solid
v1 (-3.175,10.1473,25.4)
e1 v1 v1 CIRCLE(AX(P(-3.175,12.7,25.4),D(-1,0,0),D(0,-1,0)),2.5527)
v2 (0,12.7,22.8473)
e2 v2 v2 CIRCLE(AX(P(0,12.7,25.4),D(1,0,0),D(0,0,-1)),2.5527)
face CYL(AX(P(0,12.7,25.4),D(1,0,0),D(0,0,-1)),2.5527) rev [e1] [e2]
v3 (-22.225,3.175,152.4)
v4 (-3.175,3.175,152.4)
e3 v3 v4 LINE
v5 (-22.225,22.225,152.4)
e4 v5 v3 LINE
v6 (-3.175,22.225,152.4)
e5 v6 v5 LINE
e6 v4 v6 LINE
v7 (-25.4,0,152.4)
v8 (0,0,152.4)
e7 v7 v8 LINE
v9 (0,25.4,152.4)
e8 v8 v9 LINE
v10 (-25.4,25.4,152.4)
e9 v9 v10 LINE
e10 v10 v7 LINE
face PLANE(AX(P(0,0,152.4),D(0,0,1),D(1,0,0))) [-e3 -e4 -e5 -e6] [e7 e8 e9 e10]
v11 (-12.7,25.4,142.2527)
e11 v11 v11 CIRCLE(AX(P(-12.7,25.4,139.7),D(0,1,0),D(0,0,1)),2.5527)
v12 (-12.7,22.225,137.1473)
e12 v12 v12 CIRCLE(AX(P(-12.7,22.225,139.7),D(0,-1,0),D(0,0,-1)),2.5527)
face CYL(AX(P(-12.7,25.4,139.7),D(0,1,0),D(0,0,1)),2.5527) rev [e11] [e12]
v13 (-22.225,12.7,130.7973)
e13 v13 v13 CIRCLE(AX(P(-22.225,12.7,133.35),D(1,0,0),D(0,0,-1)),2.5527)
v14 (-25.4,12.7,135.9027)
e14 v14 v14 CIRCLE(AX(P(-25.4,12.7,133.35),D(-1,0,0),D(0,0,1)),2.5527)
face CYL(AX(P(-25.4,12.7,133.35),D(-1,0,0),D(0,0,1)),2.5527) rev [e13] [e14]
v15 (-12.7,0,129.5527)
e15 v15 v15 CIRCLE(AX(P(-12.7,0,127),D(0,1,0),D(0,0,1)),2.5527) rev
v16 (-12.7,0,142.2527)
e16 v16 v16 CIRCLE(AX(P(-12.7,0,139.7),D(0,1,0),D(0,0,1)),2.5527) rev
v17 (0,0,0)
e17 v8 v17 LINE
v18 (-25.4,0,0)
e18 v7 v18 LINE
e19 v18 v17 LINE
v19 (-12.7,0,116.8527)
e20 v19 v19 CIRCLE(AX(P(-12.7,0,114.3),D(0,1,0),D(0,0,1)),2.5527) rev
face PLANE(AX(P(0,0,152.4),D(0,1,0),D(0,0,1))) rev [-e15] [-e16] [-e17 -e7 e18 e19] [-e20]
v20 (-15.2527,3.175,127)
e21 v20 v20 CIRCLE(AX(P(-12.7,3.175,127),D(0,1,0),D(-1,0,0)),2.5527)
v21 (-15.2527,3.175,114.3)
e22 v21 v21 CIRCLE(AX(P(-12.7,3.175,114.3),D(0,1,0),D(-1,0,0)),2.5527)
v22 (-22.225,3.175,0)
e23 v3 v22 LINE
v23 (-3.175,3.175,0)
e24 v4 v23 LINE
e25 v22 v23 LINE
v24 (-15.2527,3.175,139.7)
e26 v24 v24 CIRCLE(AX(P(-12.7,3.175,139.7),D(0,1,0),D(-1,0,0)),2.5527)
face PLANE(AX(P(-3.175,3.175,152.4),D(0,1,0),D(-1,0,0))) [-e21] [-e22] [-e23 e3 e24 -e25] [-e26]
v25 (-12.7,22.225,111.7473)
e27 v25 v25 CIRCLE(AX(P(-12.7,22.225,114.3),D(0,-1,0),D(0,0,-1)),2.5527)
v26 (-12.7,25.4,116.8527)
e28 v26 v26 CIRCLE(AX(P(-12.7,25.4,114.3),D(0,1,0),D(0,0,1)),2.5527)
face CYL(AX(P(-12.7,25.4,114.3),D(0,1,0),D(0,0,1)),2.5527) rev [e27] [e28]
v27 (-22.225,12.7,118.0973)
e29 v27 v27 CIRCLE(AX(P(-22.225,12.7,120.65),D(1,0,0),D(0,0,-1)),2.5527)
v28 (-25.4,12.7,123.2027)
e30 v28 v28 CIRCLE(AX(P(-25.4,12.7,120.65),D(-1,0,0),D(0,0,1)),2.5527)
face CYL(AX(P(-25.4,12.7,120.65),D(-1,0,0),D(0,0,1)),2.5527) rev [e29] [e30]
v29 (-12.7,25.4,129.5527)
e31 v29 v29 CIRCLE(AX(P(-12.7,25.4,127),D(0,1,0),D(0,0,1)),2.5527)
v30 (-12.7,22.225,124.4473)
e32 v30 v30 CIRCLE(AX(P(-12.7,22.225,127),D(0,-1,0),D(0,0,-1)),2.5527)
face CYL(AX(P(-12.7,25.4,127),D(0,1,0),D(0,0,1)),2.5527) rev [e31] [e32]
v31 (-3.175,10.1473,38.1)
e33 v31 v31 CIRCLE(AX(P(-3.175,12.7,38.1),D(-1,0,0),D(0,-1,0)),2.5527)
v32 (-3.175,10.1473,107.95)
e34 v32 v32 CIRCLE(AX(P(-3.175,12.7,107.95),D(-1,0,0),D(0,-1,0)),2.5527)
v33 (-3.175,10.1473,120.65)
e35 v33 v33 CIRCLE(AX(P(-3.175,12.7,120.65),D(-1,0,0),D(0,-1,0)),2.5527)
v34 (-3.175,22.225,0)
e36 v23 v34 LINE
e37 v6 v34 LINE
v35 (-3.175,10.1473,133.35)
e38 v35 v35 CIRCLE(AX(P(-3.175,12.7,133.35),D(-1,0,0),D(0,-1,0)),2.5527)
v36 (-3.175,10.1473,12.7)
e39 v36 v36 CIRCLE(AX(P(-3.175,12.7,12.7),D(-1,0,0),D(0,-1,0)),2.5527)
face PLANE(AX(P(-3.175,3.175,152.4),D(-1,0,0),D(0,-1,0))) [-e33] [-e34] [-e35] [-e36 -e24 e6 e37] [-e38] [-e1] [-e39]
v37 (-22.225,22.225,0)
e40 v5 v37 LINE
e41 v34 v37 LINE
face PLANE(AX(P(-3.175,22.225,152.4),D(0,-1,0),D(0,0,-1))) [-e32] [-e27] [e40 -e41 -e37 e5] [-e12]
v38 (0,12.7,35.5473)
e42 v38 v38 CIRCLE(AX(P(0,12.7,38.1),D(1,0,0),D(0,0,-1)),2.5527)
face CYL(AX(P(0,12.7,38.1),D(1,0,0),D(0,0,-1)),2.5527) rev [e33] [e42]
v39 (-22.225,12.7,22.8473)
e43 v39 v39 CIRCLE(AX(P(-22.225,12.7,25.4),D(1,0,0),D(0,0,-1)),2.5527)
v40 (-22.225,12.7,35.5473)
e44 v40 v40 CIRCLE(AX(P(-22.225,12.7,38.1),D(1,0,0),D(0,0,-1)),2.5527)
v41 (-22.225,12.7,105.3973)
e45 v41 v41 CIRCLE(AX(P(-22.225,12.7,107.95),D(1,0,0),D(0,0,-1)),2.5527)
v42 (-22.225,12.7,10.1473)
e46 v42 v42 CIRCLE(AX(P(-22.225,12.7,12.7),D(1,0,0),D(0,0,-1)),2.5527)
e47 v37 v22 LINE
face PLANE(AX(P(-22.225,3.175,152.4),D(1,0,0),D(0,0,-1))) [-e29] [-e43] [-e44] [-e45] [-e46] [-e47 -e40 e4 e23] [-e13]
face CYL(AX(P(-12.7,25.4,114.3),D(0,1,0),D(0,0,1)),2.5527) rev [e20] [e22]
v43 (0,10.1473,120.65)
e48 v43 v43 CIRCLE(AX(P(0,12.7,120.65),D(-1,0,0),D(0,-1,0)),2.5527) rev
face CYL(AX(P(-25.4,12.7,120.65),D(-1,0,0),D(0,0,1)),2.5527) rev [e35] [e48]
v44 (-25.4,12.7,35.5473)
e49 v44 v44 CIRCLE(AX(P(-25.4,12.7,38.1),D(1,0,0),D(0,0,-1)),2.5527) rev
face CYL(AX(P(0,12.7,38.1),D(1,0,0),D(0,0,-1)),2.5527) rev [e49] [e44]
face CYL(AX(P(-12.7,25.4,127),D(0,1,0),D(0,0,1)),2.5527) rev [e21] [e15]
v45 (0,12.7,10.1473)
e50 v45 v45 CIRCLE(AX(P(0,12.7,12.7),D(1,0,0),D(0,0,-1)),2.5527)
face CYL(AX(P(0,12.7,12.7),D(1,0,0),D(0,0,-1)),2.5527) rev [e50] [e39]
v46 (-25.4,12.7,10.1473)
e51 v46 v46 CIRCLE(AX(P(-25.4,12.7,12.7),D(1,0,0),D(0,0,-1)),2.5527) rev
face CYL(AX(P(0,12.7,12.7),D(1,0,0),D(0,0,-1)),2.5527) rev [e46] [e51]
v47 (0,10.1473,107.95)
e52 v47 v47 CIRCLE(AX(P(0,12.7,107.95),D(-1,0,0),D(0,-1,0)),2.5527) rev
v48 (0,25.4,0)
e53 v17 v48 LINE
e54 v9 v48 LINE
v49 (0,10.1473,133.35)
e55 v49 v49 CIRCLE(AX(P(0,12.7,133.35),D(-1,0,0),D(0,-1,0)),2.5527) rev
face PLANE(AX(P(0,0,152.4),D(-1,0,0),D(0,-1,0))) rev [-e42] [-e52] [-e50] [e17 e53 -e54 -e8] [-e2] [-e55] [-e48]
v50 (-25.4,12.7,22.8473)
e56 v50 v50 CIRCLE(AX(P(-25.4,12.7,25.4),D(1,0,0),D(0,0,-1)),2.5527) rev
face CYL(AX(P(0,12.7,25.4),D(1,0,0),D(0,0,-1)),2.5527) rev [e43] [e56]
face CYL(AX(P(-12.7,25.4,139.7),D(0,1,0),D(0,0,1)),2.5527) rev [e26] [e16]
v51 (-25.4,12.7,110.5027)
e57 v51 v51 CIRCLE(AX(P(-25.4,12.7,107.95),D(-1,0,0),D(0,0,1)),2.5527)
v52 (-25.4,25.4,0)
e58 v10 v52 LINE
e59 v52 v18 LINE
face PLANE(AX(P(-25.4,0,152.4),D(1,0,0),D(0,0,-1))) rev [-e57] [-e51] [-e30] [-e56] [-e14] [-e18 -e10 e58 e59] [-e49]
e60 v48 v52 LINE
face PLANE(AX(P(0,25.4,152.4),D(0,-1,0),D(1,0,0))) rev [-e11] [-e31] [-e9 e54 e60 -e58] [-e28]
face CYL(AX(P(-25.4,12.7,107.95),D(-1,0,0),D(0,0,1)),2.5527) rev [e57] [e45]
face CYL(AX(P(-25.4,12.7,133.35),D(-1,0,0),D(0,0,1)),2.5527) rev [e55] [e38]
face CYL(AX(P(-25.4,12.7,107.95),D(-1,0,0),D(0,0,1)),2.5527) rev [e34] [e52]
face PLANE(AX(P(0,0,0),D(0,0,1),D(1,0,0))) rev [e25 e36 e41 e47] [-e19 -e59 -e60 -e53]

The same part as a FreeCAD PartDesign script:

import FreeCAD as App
import Part
import Sketcher

V = App.Vector
Q = App.Units.Quantity


def add_polygon(sketch, points):
    """Adds a closed chain of lines whose ends are joined by coincident constraints."""
    first, n = sketch.GeometryCount, len(points)
    for a, b in zip(points, points[1:] + points[:1]):
        sketch.addGeometry(Part.LineSegment(App.Vector(*a, 0), App.Vector(*b, 0)), False)
    for i in range(n):
        sketch.addConstraint(Sketcher.Constraint("Coincident", first + i, 2, first + (i + 1) % n, 1))

doc = App.newDocument("Part")
body = doc.addObject("PartDesign::Body", "Body")

# Sketch on XY plane
sketch1 = doc.addObject("Sketcher::SketchObject", "Sketch")
body.addObject(sketch1)
sketch1.AttachmentSupport = (doc.XY_Plane, [""])
sketch1.MapMode = "FlatFace"
add_polygon(sketch1, [(-25, 25), (-25, 0), (0, 0), (0, 25)])  # lines 0-3
add_polygon(sketch1, [(-3, 3), (-22, 3), (-22, 22), (-3, 22)])  # lines 4-7
sketch1.addConstraint([
    Sketcher.Constraint("Vertical", 0),
    Sketcher.Constraint("Horizontal", 1),
    Sketcher.Constraint("Vertical", 2),
    Sketcher.Constraint("Horizontal", 3),
    Sketcher.Constraint("Horizontal", 4),
    Sketcher.Constraint("Vertical", 5),
    Sketcher.Constraint("Horizontal", 6),
    Sketcher.Constraint("Vertical", 7),
    Sketcher.Constraint("Coincident", 1, 2, -1, 1),
    Sketcher.Constraint("Equal", 3, 0),
    Sketcher.Constraint("Equal", 6, 5),
    Sketcher.Constraint("DistanceX", 1, 1, 1, 2, Q("1 in")),
    Sketcher.Constraint("DistanceX", 4, 2, 4, 1, Q("0.75 in")),
    Sketcher.Constraint("DistanceX", 4, 2, -1, 1, Q("0.875 in")),
    Sketcher.Constraint("DistanceY", -1, 1, 4, 2, Q("0.125 in")),
])
pad1 = doc.addObject("PartDesign::Pad", "Pad")
body.addObject(pad1)
pad1.Profile = sketch1
pad1.Length = Q("6 in")

# Sketch on XZ plane
sketch2 = doc.addObject("Sketcher::SketchObject", "Sketch001")
body.addObject(sketch2)
sketch2.AttachmentSupport = (doc.XZ_Plane, [""])
sketch2.MapMode = "FlatFace"
sketch2.AttachmentOffset = App.Placement(V(0, 0, -1 * 25.4), App.Rotation())
sketch2.addGeometry([
    Part.Circle(V(-12.7, 139.7, 0), V(0, 0, 1), 2.6),
    Part.Circle(V(-12.7, 127, 0), V(0, 0, 1), 2.6),
    Part.Circle(V(-12.7, 114.3, 0), V(0, 0, 1), 2.6),
], False)
sketch2.addConstraint([
    Sketcher.Constraint("Equal", 0, 1),
    Sketcher.Constraint("Equal", 1, 2),
    Sketcher.Constraint("Vertical", 0, 3, 1, 3),
    Sketcher.Constraint("Vertical", 1, 3, 2, 3),
    Sketcher.Constraint("Diameter", 0, Q("0.201 in")),
    Sketcher.Constraint("DistanceY", -1, 1, 1, 3, Q("5 in")),
    Sketcher.Constraint("DistanceY", 2, 3, 0, 3, Q("1 in")),
    Sketcher.Constraint("DistanceX", 0, 3, -1, 1, Q("0.5 in")),
    Sketcher.Constraint("DistanceY", -1, 1, 0, 3, Q("5.5 in")),
])
doc.recompute()
hole = doc.addObject("PartDesign::Hole", "Hole")
body.addObject(hole)
hole.Profile = sketch2
hole.ThreadType = "None"
hole.Diameter = Q("0.201 in")
hole.DepthType = "ThroughAll"
hole.Reversed = True

# Sketch on YZ plane
sketch3 = doc.addObject("Sketcher::SketchObject", "Sketch002")
body.addObject(sketch3)
sketch3.AttachmentSupport = (doc.YZ_Plane, [""])
sketch3.MapMode = "FlatFace"
sketch3.AttachmentOffset = App.Placement(V(0, 0, -1 * 25.4), App.Rotation())
sketch3.addGeometry([
    Part.Circle(V(12.7, 133.3, 0), V(0, 0, 1), 2.6),
    Part.Circle(V(12.7, 120.7, 0), V(0, 0, 1), 2.6),
    Part.Circle(V(12.7, 108, 0), V(0, 0, 1), 2.6),
], False)
sketch3.addConstraint([
    Sketcher.Constraint("Equal", 0, 1),
    Sketcher.Constraint("Equal", 1, 2),
    Sketcher.Constraint("Vertical", 0, 3, 1, 3),
    Sketcher.Constraint("Vertical", 1, 3, 2, 3),
    Sketcher.Constraint("Diameter", 0, Q("0.201 in")),
    Sketcher.Constraint("DistanceY", 2, 3, 0, 3, Q("1 in")),
    Sketcher.Constraint("DistanceX", -1, 1, 0, 3, Q("0.5 in")),
    Sketcher.Constraint("DistanceY", 1, 3, 0, 3, Q("0.5 in")),
    Sketcher.Constraint("DistanceY", -1, 1, 0, 3, Q("5.25 in")),
])
doc.recompute()
hole2 = doc.addObject("PartDesign::Hole", "Hole001")
body.addObject(hole2)
hole2.Profile = sketch3
hole2.ThreadType = "None"
hole2.Diameter = Q("0.201 in")
hole2.DepthType = "ThroughAll"
hole2.Reversed = True

# Sketch on YZ plane
sketch4 = doc.addObject("Sketcher::SketchObject", "Sketch003")
body.addObject(sketch4)
sketch4.AttachmentSupport = (doc.YZ_Plane, [""])
sketch4.MapMode = "FlatFace"
sketch4.addGeometry([
    Part.Circle(V(12.7, 12.7, 0), V(0, 0, 1), 2.6),
    Part.Circle(V(12.7, 25.4, 0), V(0, 0, 1), 2.6),
    Part.Circle(V(12.7, 38.1, 0), V(0, 0, 1), 2.6),
], False)
sketch4.addConstraint([
    Sketcher.Constraint("Equal", 0, 1),
    Sketcher.Constraint("Equal", 1, 2),
    Sketcher.Constraint("Vertical", 0, 3, 1, 3),
    Sketcher.Constraint("Vertical", 1, 3, 2, 3),
    Sketcher.Constraint("Diameter", 0, Q("0.201 in")),
    Sketcher.Constraint("DistanceY", -1, 1, 1, 3, Q("1 in")),
    Sketcher.Constraint("DistanceY", 0, 3, 2, 3, Q("1 in")),
    Sketcher.Constraint("DistanceX", -1, 1, 0, 3, Q("0.5 in")),
    Sketcher.Constraint("DistanceY", -1, 1, 0, 3, Q("0.5 in")),
])
doc.recompute()
hole3 = doc.addObject("PartDesign::Hole", "Hole002")
body.addObject(hole3)
hole3.Profile = sketch4
hole3.ThreadType = "None"
hole3.Diameter = Q("0.201 in")
hole3.DepthType = "ThroughAll"

doc.recompute()
